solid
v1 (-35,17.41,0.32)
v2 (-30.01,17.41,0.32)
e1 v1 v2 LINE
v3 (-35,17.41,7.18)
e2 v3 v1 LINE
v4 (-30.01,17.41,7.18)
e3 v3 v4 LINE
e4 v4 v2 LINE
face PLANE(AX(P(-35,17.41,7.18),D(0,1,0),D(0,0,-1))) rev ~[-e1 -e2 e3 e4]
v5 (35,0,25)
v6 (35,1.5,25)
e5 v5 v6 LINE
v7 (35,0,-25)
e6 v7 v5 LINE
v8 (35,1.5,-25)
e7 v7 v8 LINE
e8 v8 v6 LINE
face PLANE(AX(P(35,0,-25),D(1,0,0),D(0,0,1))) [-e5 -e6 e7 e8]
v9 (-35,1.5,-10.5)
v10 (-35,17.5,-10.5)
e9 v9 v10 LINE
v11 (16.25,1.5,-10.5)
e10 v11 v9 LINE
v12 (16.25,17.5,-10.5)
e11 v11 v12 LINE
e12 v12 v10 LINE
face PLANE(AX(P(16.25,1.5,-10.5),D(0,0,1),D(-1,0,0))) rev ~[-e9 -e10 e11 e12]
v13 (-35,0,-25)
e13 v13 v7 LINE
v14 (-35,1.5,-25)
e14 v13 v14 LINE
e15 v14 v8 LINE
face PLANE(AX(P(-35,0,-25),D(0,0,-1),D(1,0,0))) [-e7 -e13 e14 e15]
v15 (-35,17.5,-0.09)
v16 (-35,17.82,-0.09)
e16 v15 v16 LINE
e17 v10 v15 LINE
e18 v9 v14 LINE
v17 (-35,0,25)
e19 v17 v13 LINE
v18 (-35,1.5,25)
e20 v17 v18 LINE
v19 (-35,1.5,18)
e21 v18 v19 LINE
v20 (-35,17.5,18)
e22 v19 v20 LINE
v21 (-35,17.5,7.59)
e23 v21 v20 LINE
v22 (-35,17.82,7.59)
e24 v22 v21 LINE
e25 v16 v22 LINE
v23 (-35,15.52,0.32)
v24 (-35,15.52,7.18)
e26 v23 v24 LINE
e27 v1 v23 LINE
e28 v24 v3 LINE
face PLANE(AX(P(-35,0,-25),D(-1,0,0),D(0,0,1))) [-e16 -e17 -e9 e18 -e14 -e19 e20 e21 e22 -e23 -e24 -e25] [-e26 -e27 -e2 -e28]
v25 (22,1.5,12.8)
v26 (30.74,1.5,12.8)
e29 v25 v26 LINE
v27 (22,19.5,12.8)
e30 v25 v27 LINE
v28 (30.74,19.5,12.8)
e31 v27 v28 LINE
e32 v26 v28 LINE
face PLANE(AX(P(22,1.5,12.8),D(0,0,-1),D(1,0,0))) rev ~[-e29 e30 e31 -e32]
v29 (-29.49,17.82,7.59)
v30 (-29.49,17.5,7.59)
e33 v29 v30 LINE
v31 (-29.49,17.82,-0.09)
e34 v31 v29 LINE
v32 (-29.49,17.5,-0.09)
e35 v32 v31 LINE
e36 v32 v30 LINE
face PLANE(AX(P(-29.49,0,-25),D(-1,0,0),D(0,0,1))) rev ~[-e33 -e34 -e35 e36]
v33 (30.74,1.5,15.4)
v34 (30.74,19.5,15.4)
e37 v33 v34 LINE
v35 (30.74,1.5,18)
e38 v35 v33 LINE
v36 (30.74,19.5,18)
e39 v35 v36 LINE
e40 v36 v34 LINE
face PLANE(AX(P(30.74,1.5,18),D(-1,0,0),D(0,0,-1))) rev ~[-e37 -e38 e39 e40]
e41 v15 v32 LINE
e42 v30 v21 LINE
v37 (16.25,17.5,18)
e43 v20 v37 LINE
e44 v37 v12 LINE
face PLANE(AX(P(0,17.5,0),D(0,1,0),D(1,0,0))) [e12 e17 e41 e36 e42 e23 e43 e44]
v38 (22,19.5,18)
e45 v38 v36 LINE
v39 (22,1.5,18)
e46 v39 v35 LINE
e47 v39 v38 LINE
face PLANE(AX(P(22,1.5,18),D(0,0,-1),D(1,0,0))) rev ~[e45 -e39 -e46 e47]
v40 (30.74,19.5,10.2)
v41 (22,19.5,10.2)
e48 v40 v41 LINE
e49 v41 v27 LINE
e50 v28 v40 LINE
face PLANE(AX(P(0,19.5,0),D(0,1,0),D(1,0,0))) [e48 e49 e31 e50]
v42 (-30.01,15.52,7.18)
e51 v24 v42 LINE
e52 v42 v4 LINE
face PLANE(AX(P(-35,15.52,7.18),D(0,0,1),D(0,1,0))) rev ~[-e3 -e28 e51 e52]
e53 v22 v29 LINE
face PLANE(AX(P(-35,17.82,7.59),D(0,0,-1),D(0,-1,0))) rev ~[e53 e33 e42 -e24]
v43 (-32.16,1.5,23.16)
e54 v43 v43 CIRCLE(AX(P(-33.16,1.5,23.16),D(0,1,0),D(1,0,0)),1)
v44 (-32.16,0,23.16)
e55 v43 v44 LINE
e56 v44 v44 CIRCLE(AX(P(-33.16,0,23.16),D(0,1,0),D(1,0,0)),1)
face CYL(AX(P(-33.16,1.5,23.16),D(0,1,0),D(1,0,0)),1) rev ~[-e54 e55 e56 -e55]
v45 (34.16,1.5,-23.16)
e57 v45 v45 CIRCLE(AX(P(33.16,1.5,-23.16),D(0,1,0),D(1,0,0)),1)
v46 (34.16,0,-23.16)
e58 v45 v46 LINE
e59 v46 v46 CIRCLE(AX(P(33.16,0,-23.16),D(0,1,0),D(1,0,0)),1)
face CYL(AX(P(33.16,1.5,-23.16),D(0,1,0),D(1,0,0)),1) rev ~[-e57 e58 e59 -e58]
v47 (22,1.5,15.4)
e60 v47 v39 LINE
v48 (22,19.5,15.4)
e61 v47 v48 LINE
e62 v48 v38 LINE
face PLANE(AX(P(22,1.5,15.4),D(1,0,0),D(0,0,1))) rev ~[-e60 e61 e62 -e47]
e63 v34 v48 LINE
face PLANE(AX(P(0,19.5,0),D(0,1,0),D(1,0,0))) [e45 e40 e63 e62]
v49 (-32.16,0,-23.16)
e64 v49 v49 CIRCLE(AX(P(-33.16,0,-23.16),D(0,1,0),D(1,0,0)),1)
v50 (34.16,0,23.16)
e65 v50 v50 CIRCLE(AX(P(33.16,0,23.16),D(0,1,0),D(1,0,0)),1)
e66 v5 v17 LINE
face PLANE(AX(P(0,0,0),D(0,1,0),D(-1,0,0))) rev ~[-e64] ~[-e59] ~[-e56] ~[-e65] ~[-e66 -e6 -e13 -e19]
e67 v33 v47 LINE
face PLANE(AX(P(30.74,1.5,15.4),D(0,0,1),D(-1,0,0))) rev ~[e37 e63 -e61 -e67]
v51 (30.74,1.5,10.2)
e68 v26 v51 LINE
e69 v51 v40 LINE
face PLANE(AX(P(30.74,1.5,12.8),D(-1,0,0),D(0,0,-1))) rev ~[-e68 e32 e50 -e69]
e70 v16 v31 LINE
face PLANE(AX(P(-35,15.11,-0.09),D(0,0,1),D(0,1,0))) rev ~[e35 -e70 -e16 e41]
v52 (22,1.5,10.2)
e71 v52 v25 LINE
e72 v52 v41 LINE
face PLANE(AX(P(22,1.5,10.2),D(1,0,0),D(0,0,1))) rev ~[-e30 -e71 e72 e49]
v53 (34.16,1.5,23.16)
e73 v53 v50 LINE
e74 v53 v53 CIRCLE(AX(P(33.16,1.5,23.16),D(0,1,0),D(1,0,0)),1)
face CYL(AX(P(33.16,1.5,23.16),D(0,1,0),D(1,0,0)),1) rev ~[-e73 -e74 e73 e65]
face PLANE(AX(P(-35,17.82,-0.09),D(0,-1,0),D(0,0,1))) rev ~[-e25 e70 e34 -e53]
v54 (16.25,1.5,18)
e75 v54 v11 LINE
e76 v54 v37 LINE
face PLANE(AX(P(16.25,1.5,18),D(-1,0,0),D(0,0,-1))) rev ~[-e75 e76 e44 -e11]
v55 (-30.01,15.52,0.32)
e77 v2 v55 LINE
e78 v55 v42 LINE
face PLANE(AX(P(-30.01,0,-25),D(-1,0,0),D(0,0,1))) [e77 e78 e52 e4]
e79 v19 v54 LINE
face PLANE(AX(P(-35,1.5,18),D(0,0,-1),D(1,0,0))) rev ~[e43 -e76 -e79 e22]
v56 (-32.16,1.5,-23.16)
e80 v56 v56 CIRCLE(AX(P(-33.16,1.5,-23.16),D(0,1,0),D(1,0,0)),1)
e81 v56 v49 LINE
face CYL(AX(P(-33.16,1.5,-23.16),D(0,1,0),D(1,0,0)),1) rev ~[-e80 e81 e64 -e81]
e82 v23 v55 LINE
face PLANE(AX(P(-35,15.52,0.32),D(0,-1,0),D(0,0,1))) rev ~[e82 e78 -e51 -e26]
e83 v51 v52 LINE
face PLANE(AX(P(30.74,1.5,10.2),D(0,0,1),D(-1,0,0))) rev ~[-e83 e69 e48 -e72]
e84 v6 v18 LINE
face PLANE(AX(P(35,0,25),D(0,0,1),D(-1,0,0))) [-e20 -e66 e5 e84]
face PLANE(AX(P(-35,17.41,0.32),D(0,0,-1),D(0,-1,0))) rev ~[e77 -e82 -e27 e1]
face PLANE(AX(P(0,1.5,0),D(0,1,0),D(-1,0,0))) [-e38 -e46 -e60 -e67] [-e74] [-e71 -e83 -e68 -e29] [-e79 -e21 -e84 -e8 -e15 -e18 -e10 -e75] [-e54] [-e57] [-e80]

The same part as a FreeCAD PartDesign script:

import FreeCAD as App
import Part
import Sketcher

V = App.Vector
Q = App.Units.Quantity

doc = App.newDocument("Part")
body = doc.addObject("PartDesign::Body", "Body")

sketch1 = doc.addObject("Sketcher::SketchObject", "Sketch")
body.addObject(sketch1)
sketch1.AttachmentSupport = (doc.XZ_Plane, [""])
sketch1.MapMode = "FlatFace"
sketch1.addGeometry([
    Part.LineSegment(V(-35, 25, 0), V(35, 25, 0)),
    Part.LineSegment(V(35, 25, 0), V(35, -25, 0)),
    Part.LineSegment(V(35, -25, 0), V(-35, -25, 0)),
    Part.LineSegment(V(-35, -25, 0), V(-35, 25, 0)),
], False)
sketch1.addConstraint([
    Sketcher.Constraint("Coincident", 0, 2, 1, 1),
    Sketcher.Constraint("Coincident", 1, 2, 2, 1),
    Sketcher.Constraint("Coincident", 2, 2, 3, 1),
    Sketcher.Constraint("Coincident", 3, 2, 0, 1),
    Sketcher.Constraint("Horizontal", 0),
    Sketcher.Constraint("Vertical", 1),
    Sketcher.Constraint("Horizontal", 2),
    Sketcher.Constraint("Vertical", 3),
    Sketcher.Constraint("Symmetric", 0, 2, 2, 2, -1, 1),
    Sketcher.Constraint("DistanceX", 0, 1, 0, 2, Q("70 mm")),
    Sketcher.Constraint("DistanceY", 1, 2, 1, 1, Q("50 mm")),
])
pad1 = doc.addObject("PartDesign::Pad", "Pad")
body.addObject(pad1)
pad1.Profile = sketch1
pad1.Length = 1.5
pad1.Reversed = True

sketch2 = doc.addObject("Sketcher::SketchObject", "Sketch001")
body.addObject(sketch2)
sketch2.AttachmentSupport = (doc.XZ_Plane, [""])
sketch2.MapMode = "FlatFace"
sketch2.AttachmentOffset = App.Placement(V(0, 0, -1.5), App.Rotation())
sketch2.addGeometry([
    Part.LineSegment(V(16, 18, 0), V(16, -10, 0)),
    Part.LineSegment(V(16, -10, 0), V(-35, -10, 0)),
    Part.LineSegment(V(-35, -10, 0), V(-35, 18, 0)),
    Part.LineSegment(V(-35, 18, 0), V(16, 18, 0)),
], False)
sketch2.addConstraint([
    Sketcher.Constraint("Coincident", 0, 2, 1, 1),
    Sketcher.Constraint("Coincident", 1, 2, 2, 1),
    Sketcher.Constraint("Coincident", 2, 2, 3, 1),
    Sketcher.Constraint("Coincident", 3, 2, 0, 1),
    Sketcher.Constraint("Vertical", 0),
    Sketcher.Constraint("Horizontal", 1),
    Sketcher.Constraint("Vertical", 2),
    Sketcher.Constraint("Horizontal", 3),
    Sketcher.Constraint("DistanceY", 0, 2, 0, 1, Q("28.5 mm")),
    Sketcher.Constraint("DistanceX", 1, 2, 1, 1, Q("51.25 mm")),
    Sketcher.Constraint("DistanceX", 1, 2, -1, 1, Q("35 mm")),
    Sketcher.Constraint("DistanceY", -1, 1, 2, 2, Q("18 mm")),
])
pad2 = doc.addObject("PartDesign::Pad", "Pad001")
body.addObject(pad2)
pad2.Profile = sketch2
pad2.Length = 16
pad2.Reversed = True

sketch3 = doc.addObject("Sketcher::SketchObject", "Sketch002")
body.addObject(sketch3)
sketch3.AttachmentSupport = (doc.XZ_Plane, [""])
sketch3.MapMode = "FlatFace"
sketch3.AttachmentOffset = App.Placement(V(0, 0, -1.5), App.Rotation())
sketch3.addGeometry([
    Part.LineSegment(V(30.7, 18, 0), V(30.7, 15.4, 0)),
    Part.LineSegment(V(30.7, 15.4, 0), V(22, 15.4, 0)),
    Part.LineSegment(V(22, 15.4, 0), V(22, 18, 0)),
    Part.LineSegment(V(22, 18, 0), V(30.7, 18, 0)),
    Part.LineSegment(V(30.7, 12.8, 0), V(30.7, 10.2, 0)),
    Part.LineSegment(V(30.7, 10.2, 0), V(22, 10.2, 0)),
    Part.LineSegment(V(22, 10.2, 0), V(22, 12.8, 0)),
    Part.LineSegment(V(22, 12.8, 0), V(30.7, 12.8, 0)),
], False)
sketch3.addConstraint([
    Sketcher.Constraint("Coincident", 0, 2, 1, 1),
    Sketcher.Constraint("Coincident", 1, 2, 2, 1),
    Sketcher.Constraint("Coincident", 2, 2, 3, 1),
    Sketcher.Constraint("Coincident", 3, 2, 0, 1),
    Sketcher.Constraint("Coincident", 4, 2, 5, 1),
    Sketcher.Constraint("Coincident", 5, 2, 6, 1),
    Sketcher.Constraint("Coincident", 6, 2, 7, 1),
    Sketcher.Constraint("Coincident", 7, 2, 4, 1),
    Sketcher.Constraint("Vertical", 0),
    Sketcher.Constraint("Horizontal", 1),
    Sketcher.Constraint("Vertical", 2),
    Sketcher.Constraint("Horizontal", 3),
    Sketcher.Constraint("Vertical", 4),
    Sketcher.Constraint("Horizontal", 5),
    Sketcher.Constraint("Vertical", 6),
    Sketcher.Constraint("Horizontal", 7),
    Sketcher.Constraint("Vertical", 3, 2, 4, 2),
    Sketcher.Constraint("Vertical", 2, 2, 5, 2),
    Sketcher.Constraint("Equal", 2, 4),
    Sketcher.Constraint("DistanceY", 0, 2, 0, 1, Q("2.6 mm")),
    Sketcher.Constraint("DistanceX", 1, 2, 1, 1, Q("8.74 mm")),
    Sketcher.Constraint("DistanceY", 6, 2, 1, 2, Q("2.6 mm")),
    Sketcher.Constraint("DistanceX", -1, 1, 1, 2, Q("22 mm")),
    Sketcher.Constraint("DistanceY", -1, 1, 2, 2, Q("18 mm")),
])
pad3 = doc.addObject("PartDesign::Pad", "Pad002")
body.addObject(pad3)
pad3.Profile = sketch3
pad3.Length = 18
pad3.Reversed = True

sketch4 = doc.addObject("Sketcher::SketchObject", "Sketch003")
body.addObject(sketch4)
sketch4.AttachmentSupport = (doc.YZ_Plane, [""])
sketch4.MapMode = "FlatFace"
sketch4.AttachmentOffset = App.Placement(V(0, 0, -35), App.Rotation())
sketch4.addGeometry([
    Part.LineSegment(V(17.8, 7.6, 0), V(17.8, -0.1, 0)),
    Part.LineSegment(V(17.8, -0.1, 0), V(15.1, -0.1, 0)),
    Part.LineSegment(V(15.1, -0.1, 0), V(15.1, 7.6, 0)),
    Part.LineSegment(V(15.1, 7.6, 0), V(17.8, 7.6, 0)),
    Part.LineSegment(V(17.4, 0.3, 0), V(17.4, 7.2, 0)),
    Part.LineSegment(V(17.4, 7.2, 0), V(15.5, 7.2, 0)),
    Part.LineSegment(V(15.5, 7.2, 0), V(15.5, 0.3, 0)),
    Part.LineSegment(V(15.5, 0.3, 0), V(17.4, 0.3, 0)),
], False)
sketch4.addConstraint([
    Sketcher.Constraint("Coincident", 0, 2, 1, 1),
    Sketcher.Constraint("Coincident", 1, 2, 2, 1),
    Sketcher.Constraint("Coincident", 2, 2, 3, 1),
    Sketcher.Constraint("Coincident", 3, 2, 0, 1),
    Sketcher.Constraint("Coincident", 4, 2, 5, 1),
    Sketcher.Constraint("Coincident", 5, 2, 6, 1),
    Sketcher.Constraint("Coincident", 6, 2, 7, 1),
    Sketcher.Constraint("Coincident", 7, 2, 4, 1),
    Sketcher.Constraint("Vertical", 0),
    Sketcher.Constraint("Horizontal", 1),
    Sketcher.Constraint("Vertical", 2),
    Sketcher.Constraint("Horizontal", 3),
    Sketcher.Constraint("Vertical", 4),
    Sketcher.Constraint("Horizontal", 5),
    Sketcher.Constraint("Vertical", 6),
    Sketcher.Constraint("Horizontal", 7),
    Sketcher.Constraint("DistanceX", 1, 2, 1, 1, Q("2.71 mm")),
    Sketcher.Constraint("DistanceY", 0, 2, 0, 1, Q("7.68 mm")),
    Sketcher.Constraint("DistanceX", 4, 2, 3, 2, Q("0.41 mm")),
    Sketcher.Constraint("DistanceY", 4, 2, 3, 2, Q("0.41 mm")),
    Sketcher.Constraint("DistanceX", 2, 2, 5, 2, Q("0.41 mm")),
    Sketcher.Constraint("DistanceY", 1, 2, 6, 2, Q("0.41 mm")),
    Sketcher.Constraint("DistanceX", -1, 1, 0, 2, Q("17.82 mm")),
    Sketcher.Constraint("DistanceY", 0, 2, -1, 1, Q("0.09 mm")),
])
pad4 = doc.addObject("PartDesign::Pad", "Pad003")
body.addObject(pad4)
pad4.Profile = sketch4
pad4.Length = 5.51

sketch5 = doc.addObject("Sketcher::SketchObject", "Sketch004")
body.addObject(sketch5)
sketch5.AttachmentSupport = (doc.YZ_Plane, [""])
sketch5.MapMode = "FlatFace"
sketch5.AttachmentOffset = App.Placement(V(0, 0, -35), App.Rotation())
sketch5.addGeometry([
    Part.LineSegment(V(15.5, 7.2, 0), V(17.4, 7.2, 0)),
    Part.LineSegment(V(17.4, 7.2, 0), V(17.4, 0.3, 0)),
    Part.LineSegment(V(17.4, 0.3, 0), V(15.5, 0.3, 0)),
    Part.LineSegment(V(15.5, 0.3, 0), V(15.5, 7.2, 0)),
], False)
sketch5.addConstraint([
    Sketcher.Constraint("Coincident", 0, 2, 1, 1),
    Sketcher.Constraint("Coincident", 1, 2, 2, 1),
    Sketcher.Constraint("Coincident", 2, 2, 3, 1),
    Sketcher.Constraint("Coincident", 3, 2, 0, 1),
    Sketcher.Constraint("Horizontal", 0),
    Sketcher.Constraint("Vertical", 1),
    Sketcher.Constraint("Horizontal", 2),
    Sketcher.Constraint("Vertical", 3),
    Sketcher.Constraint("DistanceX", 0, 1, 0, 2, Q("1.89 mm")),
    Sketcher.Constraint("DistanceY", 1, 2, 1, 1, Q("6.86 mm")),
    Sketcher.Constraint("DistanceX", -1, 1, 0, 2, Q("17.41 mm")),
    Sketcher.Constraint("DistanceY", -1, 1, 0, 2, Q("7.18 mm")),
])
pocket1 = doc.addObject("PartDesign::Pocket", "Pocket")
body.addObject(pocket1)
pocket1.Profile = sketch5
pocket1.Length = 4.99
pocket1.Reversed = True

sketch6 = doc.addObject("Sketcher::SketchObject", "Sketch005")
body.addObject(sketch6)
sketch6.AttachmentSupport = (doc.XZ_Plane, [""])
sketch6.MapMode = "FlatFace"
sketch6.AttachmentOffset = App.Placement(V(0, 0, -1.5), App.Rotation())
sketch6.addGeometry([
    Part.Circle(V(33.2, 23.2, 0), V(0, 0, 1), 1),
    Part.Circle(V(-33.2, 23.2, 0), V(0, 0, 1), 1),
    Part.Circle(V(-33.2, -23.2, 0), V(0, 0, 1), 1),
    Part.Circle(V(33.2, -23.2, 0), V(0, 0, 1), 1),
], False)
sketch6.addConstraint([
    Sketcher.Constraint("Equal", 0, 1),
    Sketcher.Constraint("Equal", 1, 2),
    Sketcher.Constraint("Equal", 2, 3),
    Sketcher.Constraint("Symmetric", 0, 3, 2, 3, -1, 1),
    Sketcher.Constraint("Symmetric", 1, 3, 3, 3, -1, 1),
    Sketcher.Constraint("Symmetric", 0, 3, 1, 3, -2),
    Sketcher.Constraint("Diameter", 0, Q("2 mm")),
    Sketcher.Constraint("DistanceX", -1, 1, 0, 3, Q("33.16 mm")),
    Sketcher.Constraint("DistanceY", -1, 1, 0, 3, Q("23.16 mm")),
])
pocket2 = doc.addObject("PartDesign::Pocket", "Pocket001")
body.addObject(pocket2)
pocket2.Profile = sketch6
pocket2.Length = 10
pocket2.Reversed = True

doc.recompute()
